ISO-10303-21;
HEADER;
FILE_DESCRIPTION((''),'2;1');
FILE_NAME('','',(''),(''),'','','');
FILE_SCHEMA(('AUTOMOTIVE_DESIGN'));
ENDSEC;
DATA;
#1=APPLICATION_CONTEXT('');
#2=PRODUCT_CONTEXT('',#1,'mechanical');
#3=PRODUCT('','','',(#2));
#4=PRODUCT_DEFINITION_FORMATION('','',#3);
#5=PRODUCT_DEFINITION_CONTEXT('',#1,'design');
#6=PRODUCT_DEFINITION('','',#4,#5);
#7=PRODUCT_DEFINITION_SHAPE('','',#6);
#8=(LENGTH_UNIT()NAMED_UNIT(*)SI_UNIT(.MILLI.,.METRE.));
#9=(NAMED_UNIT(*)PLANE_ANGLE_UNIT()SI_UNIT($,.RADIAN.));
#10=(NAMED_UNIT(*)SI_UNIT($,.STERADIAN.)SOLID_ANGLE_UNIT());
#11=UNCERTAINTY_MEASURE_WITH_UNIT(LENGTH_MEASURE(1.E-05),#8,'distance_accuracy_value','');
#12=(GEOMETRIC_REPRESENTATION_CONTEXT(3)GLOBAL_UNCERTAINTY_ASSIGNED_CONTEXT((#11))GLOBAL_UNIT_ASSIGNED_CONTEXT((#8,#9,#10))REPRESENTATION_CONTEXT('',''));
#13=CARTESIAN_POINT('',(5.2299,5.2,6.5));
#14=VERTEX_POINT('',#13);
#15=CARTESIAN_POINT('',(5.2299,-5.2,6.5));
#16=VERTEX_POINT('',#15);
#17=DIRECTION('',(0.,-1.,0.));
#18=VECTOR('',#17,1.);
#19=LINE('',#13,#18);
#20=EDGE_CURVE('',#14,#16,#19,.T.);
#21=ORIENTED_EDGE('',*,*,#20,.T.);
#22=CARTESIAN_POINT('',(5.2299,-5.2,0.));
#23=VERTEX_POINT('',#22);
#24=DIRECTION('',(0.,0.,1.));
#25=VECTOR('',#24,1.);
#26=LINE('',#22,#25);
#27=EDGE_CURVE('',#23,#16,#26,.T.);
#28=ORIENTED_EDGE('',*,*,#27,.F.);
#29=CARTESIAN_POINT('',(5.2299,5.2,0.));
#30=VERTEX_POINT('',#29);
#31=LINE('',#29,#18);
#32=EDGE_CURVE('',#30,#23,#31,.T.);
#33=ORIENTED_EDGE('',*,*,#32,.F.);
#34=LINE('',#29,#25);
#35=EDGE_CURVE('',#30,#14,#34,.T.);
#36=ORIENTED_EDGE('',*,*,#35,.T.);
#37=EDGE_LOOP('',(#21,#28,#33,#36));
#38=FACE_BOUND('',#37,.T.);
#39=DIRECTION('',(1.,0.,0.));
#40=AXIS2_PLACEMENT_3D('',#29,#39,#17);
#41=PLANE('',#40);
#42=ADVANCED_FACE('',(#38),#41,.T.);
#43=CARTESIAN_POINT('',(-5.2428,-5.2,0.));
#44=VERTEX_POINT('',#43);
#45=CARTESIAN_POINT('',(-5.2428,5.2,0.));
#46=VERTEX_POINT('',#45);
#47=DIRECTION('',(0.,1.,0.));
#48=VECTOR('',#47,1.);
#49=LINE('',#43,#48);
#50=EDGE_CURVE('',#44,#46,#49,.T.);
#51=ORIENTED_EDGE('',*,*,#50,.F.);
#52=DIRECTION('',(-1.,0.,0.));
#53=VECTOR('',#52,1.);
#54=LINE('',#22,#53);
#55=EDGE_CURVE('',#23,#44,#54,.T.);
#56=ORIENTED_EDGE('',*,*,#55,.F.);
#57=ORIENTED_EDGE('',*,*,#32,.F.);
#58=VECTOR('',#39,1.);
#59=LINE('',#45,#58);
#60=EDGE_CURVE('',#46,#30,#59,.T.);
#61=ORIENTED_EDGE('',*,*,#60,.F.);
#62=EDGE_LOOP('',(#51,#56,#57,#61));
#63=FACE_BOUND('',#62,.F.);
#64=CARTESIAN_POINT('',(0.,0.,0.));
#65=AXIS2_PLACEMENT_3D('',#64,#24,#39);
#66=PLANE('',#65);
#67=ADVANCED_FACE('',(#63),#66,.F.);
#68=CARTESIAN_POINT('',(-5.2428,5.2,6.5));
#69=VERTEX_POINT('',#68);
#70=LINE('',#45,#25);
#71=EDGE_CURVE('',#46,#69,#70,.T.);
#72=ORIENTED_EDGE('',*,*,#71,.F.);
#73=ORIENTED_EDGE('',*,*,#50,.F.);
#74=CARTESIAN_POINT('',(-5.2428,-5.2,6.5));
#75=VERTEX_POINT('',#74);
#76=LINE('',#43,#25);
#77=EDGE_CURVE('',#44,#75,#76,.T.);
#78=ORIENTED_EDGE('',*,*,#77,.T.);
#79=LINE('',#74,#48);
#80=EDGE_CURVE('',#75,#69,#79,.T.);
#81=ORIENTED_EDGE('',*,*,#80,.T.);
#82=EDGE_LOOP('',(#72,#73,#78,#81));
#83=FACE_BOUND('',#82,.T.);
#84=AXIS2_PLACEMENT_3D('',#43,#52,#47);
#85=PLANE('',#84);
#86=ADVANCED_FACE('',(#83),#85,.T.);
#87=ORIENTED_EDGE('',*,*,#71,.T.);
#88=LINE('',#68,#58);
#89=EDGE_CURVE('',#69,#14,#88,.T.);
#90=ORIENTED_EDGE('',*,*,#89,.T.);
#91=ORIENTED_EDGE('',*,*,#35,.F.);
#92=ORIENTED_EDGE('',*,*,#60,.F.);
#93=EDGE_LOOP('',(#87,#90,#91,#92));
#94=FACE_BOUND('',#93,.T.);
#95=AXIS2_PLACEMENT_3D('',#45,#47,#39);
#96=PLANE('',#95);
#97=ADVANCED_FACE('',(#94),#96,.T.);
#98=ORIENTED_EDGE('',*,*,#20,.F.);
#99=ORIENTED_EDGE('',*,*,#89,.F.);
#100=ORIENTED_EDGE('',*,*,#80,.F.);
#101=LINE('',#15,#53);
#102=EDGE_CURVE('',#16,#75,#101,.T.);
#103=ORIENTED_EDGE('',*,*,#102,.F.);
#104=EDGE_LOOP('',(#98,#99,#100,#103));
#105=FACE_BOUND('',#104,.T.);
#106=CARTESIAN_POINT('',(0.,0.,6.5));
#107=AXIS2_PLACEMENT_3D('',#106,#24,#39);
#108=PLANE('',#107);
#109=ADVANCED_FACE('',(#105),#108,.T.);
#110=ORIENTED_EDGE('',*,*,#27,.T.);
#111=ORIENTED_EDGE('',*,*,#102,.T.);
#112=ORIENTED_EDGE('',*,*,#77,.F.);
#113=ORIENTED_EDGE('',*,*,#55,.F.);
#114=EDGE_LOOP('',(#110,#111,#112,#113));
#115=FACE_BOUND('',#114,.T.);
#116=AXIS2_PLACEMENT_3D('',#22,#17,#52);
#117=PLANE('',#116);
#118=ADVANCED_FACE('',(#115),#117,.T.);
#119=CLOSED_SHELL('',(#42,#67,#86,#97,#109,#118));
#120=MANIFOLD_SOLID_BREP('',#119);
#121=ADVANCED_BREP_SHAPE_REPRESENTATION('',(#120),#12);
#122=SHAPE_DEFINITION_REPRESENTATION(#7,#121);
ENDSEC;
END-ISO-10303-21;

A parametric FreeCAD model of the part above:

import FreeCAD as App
import Part
import Sketcher

V = App.Vector
Q = App.Units.Quantity

doc = App.newDocument("Part")
body = doc.addObject("PartDesign::Body", "Body")

sketch1 = body.newObject("Sketcher::SketchObject", "Sketch")
sketch1.AttachmentSupport = (doc.getObject("XY_Plane"), [""])
sketch1.MapMode = "FlatFace"
sketch1.addGeometry([
    Part.LineSegment(V(5, 5, 0), V(-5, 5, 0)),
    Part.LineSegment(V(-5, 5, 0), V(-5, -5, 0)),
    Part.LineSegment(V(-5, -5, 0), V(5, -5, 0)),
    Part.LineSegment(V(5, -5, 0), V(5, 5, 0)),
], False)
sketch1.addConstraint([
    Sketcher.Constraint("Coincident", 0, 2, 1, 1),
    Sketcher.Constraint("Coincident", 1, 2, 2, 1),
    Sketcher.Constraint("Coincident", 2, 2, 3, 1),
    Sketcher.Constraint("Coincident", 3, 2, 0, 1),
    Sketcher.Constraint("Horizontal", 0),
    Sketcher.Constraint("Vertical", 1),
    Sketcher.Constraint("Horizontal", 2),
    Sketcher.Constraint("Vertical", 3),
    Sketcher.Constraint("DistanceY", 1, 2, 1, 1, Q("10.4 mm")),
    Sketcher.Constraint("DistanceY", -1, 1, 0, 2, Q("5.2 mm")),
    Sketcher.Constraint("DistanceX", -1, 1, 2, 2, Q("5.23 mm")),
    Sketcher.Constraint("DistanceX", 0, 2, 0, 1, Q("10.4727 mm")),
])
pad1 = body.newObject("PartDesign::Pad", "Pad")
pad1.Profile = sketch1
pad1.Length = 6.5

doc.recompute()
